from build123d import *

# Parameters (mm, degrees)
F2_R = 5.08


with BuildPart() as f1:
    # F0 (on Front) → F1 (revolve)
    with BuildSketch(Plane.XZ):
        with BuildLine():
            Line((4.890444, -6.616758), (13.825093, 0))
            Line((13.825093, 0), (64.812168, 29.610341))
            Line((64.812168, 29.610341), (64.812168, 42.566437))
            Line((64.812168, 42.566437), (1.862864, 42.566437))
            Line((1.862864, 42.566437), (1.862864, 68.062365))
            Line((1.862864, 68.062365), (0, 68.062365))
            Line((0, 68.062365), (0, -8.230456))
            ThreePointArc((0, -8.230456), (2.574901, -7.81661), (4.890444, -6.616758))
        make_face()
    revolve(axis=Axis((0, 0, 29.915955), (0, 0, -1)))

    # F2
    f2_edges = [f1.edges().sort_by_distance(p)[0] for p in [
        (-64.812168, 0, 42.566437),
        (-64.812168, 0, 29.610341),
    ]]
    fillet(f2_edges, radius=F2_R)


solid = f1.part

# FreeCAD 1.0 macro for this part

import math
import FreeCAD as App
import Part
import Sketcher

V = App.Vector


def edges_at(feature, points):
    """Names of the edges that pass closest to the given points."""
    edges = feature.Shape.Edges
    near = lambda p: min(range(len(edges)), key=lambda i: edges[i].distToShape(Part.Vertex(*p))[0])
    return sorted({f"Edge{near(p) + 1}" for p in points})

doc = App.newDocument("Part")
params = doc.addObject("Spreadsheet::Sheet", "Params")
for row, (alias, value) in enumerate([
    ("revolution_angle", "360 deg"),
    ("fillet_radius", "0.2 in"),
], start=1):
    params.set(f"A{row}", alias)
    params.set(f"B{row}", "=" + value)
    params.setAlias(f"B{row}", alias)

body = doc.addObject("PartDesign::Body", "Body")

sketch1 = body.newObject("Sketcher::SketchObject", "Sketch")
sketch1.AttachmentSupport = (doc.getObject("XZ_Plane"), [""])
sketch1.MapMode = "FlatFace"
sketch1.addGeometry([
    Part.LineSegment(V(4.9, -6.6, 0), V(13.8, 0, 0)),
    Part.LineSegment(V(13.8, 0, 0), V(64.8, 29.6, 0)),
    Part.LineSegment(V(64.8, 29.6, 0), V(64.8, 42.6, 0)),
    Part.LineSegment(V(64.8, 42.6, 0), V(1.9, 42.6, 0)),
    Part.LineSegment(V(1.9, 42.6, 0), V(1.9, 68.1, 0)),
    Part.LineSegment(V(1.9, 68.1, 0), V(0, 68.1, 0)),
    Part.LineSegment(V(0, 68.1, 0), V(0, -8.2, 0)),
    Part.ArcOfCircle(Part.Circle(V(0, 0, 0), V(0, 0, 1), 8.2), math.radians(-90), math.radians(-53)),
], False)
sketch1.addConstraint([
    Sketcher.Constraint("Coincident", 0, 2, 1, 1),
    Sketcher.Constraint("Coincident", 1, 2, 2, 1),
    Sketcher.Constraint("Coincident", 2, 2, 3, 1),
    Sketcher.Constraint("Coincident", 3, 2, 4, 1),
    Sketcher.Constraint("Coincident", 4, 2, 5, 1),
    Sketcher.Constraint("Coincident", 5, 2, 6, 1),
    Sketcher.Constraint("Coincident", 6, 2, 7, 1),
    Sketcher.Constraint("Tangent", 7, 2, 0, 1),
    Sketcher.Constraint("Vertical", 2),
    Sketcher.Constraint("Horizontal", 3),
    Sketcher.Constraint("Vertical", 4),
    Sketcher.Constraint("Horizontal", 5),
    Sketcher.Constraint("Vertical", 6),
    Sketcher.Constraint("PointOnObject", 0, 2, -1),
    Sketcher.Constraint("PointOnObject", 5, 2, -2),
    Sketcher.Constraint("Radius", 7, 8.217301),
    Sketcher.Constraint("DistanceY", 6, 2, 6, 1, 76.292821),
    Sketcher.Constraint("DistanceY", 7, 2, 1, 2, 36.227099),
    Sketcher.Constraint("Distance", 0, 11.117978),
    Sketcher.Constraint("DistanceX", 3, 2, 3, 1, 62.949304),
    Sketcher.Constraint("DistanceX", 5, 2, 5, 1, 1.862864),
    Sketcher.Constraint("DistanceY", 2, 1, 2, 2, 12.956096),
    Sketcher.Constraint("DistanceY", 4, 1, 4, 2, 25.495928),
    Sketcher.Constraint("DistanceX", 7, 3, 1, 2, 64.81217),
])
revolution = body.newObject("PartDesign::Revolution", "Revolution")
revolution.Profile = sketch1
revolution.ReferenceAxis = (sketch1, ["V_Axis"])
revolution.setExpression("Angle", "Params.revolution_angle")
doc.recompute()

fillet = body.newObject("PartDesign::Fillet", "Fillet")
fillet.Base = (revolution, edges_at(revolution, [(-64.812, 0, 42.566), (-64.812, 0, 29.61)]))
fillet.setExpression("Radius", "Params.fillet_radius")

doc.recompute()
